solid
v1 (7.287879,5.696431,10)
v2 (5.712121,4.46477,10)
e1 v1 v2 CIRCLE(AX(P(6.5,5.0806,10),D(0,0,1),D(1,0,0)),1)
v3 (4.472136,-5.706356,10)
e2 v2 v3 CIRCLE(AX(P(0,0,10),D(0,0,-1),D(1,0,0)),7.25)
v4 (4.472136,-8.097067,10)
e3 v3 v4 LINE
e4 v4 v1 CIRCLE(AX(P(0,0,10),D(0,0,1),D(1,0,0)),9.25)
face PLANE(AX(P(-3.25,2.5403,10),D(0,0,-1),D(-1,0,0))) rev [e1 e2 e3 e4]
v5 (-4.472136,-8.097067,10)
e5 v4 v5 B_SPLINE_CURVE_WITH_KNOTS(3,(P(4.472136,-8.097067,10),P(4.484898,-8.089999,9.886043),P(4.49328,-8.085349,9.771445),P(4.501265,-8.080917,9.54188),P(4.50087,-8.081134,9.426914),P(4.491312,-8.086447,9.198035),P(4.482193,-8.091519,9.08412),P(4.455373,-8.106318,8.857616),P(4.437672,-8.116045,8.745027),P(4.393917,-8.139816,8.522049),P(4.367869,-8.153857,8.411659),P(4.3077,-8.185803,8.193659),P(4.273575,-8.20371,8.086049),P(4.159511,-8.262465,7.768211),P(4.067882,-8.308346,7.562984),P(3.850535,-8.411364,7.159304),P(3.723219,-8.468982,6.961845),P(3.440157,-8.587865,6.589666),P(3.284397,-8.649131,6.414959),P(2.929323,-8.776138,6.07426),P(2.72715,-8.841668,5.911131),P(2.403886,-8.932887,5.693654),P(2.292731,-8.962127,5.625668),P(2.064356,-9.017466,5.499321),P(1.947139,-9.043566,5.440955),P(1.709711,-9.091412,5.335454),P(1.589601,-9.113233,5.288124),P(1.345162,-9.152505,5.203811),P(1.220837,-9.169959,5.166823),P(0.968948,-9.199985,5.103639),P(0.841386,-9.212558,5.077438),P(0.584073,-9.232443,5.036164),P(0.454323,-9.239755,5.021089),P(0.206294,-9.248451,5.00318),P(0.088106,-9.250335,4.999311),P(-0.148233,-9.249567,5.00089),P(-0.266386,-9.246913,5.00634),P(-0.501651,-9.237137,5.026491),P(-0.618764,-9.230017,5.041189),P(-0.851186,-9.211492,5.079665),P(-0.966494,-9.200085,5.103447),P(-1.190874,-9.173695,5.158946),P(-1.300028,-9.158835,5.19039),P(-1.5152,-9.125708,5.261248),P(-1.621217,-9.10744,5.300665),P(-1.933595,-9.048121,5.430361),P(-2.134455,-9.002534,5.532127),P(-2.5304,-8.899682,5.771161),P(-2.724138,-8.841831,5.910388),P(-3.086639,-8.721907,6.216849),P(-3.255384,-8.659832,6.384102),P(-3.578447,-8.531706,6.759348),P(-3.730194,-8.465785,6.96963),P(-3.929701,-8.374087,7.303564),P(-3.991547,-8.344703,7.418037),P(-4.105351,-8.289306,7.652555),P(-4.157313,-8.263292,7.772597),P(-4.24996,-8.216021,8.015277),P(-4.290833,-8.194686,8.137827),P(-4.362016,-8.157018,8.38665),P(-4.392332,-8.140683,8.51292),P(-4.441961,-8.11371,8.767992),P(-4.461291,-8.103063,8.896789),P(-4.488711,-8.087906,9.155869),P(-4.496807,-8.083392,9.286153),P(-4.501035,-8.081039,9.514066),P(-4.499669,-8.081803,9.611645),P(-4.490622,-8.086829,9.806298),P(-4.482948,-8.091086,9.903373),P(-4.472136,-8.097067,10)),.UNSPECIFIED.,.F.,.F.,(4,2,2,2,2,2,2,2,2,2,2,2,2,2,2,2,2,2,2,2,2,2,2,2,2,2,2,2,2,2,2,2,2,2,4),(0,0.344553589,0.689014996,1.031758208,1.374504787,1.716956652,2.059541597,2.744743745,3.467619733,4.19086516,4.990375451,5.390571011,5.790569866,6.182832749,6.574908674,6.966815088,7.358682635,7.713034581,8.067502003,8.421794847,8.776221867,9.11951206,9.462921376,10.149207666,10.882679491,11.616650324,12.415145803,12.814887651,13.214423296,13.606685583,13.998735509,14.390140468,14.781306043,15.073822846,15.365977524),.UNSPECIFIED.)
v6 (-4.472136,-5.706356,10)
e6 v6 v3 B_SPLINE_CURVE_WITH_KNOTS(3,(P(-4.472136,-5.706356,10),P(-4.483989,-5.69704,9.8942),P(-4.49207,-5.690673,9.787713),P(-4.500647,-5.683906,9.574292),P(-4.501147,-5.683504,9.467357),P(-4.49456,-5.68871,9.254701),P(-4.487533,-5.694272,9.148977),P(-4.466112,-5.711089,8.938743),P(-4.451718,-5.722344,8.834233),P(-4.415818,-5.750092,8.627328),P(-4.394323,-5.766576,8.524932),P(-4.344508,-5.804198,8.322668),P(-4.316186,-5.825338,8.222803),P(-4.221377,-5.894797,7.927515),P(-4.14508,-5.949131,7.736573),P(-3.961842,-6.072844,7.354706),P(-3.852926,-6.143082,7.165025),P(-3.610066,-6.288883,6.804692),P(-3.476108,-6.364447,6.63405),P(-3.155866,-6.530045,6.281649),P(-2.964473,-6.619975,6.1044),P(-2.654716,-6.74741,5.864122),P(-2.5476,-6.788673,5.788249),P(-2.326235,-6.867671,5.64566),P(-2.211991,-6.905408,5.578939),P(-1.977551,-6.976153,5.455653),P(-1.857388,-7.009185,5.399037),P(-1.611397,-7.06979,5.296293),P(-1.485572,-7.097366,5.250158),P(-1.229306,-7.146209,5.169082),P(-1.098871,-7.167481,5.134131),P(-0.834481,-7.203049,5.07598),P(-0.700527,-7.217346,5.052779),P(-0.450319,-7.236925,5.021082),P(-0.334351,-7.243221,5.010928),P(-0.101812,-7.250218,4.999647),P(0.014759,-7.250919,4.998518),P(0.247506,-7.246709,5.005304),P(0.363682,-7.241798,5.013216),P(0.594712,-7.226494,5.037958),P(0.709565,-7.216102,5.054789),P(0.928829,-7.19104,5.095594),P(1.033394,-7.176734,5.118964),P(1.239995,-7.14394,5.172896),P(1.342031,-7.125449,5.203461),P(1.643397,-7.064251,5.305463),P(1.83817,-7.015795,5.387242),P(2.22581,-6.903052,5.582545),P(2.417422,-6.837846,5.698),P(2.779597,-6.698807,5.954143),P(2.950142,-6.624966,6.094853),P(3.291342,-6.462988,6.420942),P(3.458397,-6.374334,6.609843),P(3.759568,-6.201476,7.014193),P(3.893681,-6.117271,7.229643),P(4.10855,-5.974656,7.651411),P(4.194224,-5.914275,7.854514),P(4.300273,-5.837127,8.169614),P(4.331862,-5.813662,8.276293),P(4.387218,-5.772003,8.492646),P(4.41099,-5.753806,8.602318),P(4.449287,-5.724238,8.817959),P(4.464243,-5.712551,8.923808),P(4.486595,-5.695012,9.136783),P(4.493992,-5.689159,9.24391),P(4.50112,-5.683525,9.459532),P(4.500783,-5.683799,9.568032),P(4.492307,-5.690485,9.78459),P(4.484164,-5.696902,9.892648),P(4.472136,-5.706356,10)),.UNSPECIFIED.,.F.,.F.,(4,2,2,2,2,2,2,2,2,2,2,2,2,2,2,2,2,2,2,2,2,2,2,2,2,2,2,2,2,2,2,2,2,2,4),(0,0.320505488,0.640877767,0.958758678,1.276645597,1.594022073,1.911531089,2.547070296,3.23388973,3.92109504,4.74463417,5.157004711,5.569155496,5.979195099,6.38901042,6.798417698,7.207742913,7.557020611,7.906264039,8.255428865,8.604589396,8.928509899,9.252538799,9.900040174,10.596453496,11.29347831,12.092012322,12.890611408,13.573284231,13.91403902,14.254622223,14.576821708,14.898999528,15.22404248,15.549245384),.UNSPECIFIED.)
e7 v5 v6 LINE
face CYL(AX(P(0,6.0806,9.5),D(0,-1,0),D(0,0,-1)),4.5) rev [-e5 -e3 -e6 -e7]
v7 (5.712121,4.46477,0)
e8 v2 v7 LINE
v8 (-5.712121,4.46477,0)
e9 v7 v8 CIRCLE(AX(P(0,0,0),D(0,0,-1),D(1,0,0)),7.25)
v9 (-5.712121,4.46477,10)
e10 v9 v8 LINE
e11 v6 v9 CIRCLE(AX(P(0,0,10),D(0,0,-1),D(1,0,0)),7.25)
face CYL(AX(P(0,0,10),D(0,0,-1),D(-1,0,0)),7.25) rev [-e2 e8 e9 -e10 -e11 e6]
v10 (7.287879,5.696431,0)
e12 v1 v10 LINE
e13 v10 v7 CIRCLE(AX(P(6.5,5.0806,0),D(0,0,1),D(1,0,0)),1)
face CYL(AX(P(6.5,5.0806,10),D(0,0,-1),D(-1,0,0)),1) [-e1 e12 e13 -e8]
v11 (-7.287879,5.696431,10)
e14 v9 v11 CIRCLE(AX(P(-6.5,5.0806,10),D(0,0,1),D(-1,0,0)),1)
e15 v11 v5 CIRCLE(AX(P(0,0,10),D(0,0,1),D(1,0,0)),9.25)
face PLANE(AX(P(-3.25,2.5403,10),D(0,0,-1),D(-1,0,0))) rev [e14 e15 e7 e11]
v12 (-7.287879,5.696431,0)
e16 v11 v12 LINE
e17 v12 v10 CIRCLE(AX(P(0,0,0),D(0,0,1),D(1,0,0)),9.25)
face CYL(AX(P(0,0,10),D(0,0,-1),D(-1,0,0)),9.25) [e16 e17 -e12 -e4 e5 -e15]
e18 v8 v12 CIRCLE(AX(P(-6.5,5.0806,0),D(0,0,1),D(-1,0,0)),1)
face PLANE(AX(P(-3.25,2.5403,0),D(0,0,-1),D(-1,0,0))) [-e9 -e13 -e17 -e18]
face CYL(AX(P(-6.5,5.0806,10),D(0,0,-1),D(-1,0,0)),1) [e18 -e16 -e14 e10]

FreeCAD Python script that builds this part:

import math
import FreeCAD as App
import Part
import Sketcher

doc = App.newDocument("Part")
body = doc.addObject("PartDesign::Body", "Body")

# Sketch on XY plane
sketch1 = body.newObject("Sketcher::SketchObject", "Sketch")
sketch1.AttachmentSupport = (doc.getObject("XY_Plane"), [""])
sketch1.MapMode = "FlatFace"
sketch1.addGeometry([
    Part.ArcOfCircle(Part.Circle(App.Vector(0, 0, 0), App.Vector(0, 0, 1), 7.2), math.radians(142), math.radians(398)),
    Part.ArcOfCircle(Part.Circle(App.Vector(-6.5, 5.1, 0), App.Vector(0, 0, 1), 1), math.radians(-38), math.radians(142)),
    Part.ArcOfCircle(Part.Circle(App.Vector(0, 0, 0), App.Vector(0, 0, 1), 9.2), math.radians(142), math.radians(398)),
    Part.ArcOfCircle(Part.Circle(App.Vector(6.5, 5.1, 0), App.Vector(0, 0, 1), 1), math.radians(38), math.radians(218)),
], False)
sketch1.addConstraint([
    Sketcher.Constraint("Tangent", 0, 1, 1, 1),
    Sketcher.Constraint("Tangent", 1, 2, 2, 1),
    Sketcher.Constraint("Tangent", 2, 2, 3, 1),
    Sketcher.Constraint("Tangent", 3, 2, 0, 2),
    Sketcher.Constraint("Coincident", 0, 3, -1, 1),
    Sketcher.Constraint("Coincident", 2, 3, -1, 1),
    Sketcher.Constraint("Horizontal", 1, 3, 3, 3),
    Sketcher.Constraint("Radius", 1, 1.0),
    Sketcher.Constraint("Radius", 0, 7.25),
    Sketcher.Constraint("DistanceX", 1, 3, 3, 3, 13.0),
])
pad1 = body.newObject("PartDesign::Pad", "Pad")
pad1.Profile = sketch1
pad1.Length = 10

# Sketch on XZ plane
sketch2 = body.newObject("Sketcher::SketchObject", "Sketch001")
sketch2.AttachmentSupport = (doc.getObject("XZ_Plane"), [""])
sketch2.MapMode = "FlatFace"
sketch2.AttachmentOffset = App.Placement(App.Vector(0, 0, 9.25), App.Rotation())
sketch2.addGeometry(Part.Circle(App.Vector(0, 9.5, 0), App.Vector(0, 0, 1), 4.5), False)
sketch2.addConstraint([
    Sketcher.Constraint("PointOnObject", 0, 3, -2),
    Sketcher.Constraint("Diameter", 0, 9.0),
    Sketcher.Constraint("DistanceY", -1, 1, 0, 3, 9.5),
])
pocket1 = body.newObject("PartDesign::Pocket", "Pocket")
pocket1.Profile = sketch2
pocket1.Type = "ThroughAll"
pocket1.Midplane = True

doc.recompute()
